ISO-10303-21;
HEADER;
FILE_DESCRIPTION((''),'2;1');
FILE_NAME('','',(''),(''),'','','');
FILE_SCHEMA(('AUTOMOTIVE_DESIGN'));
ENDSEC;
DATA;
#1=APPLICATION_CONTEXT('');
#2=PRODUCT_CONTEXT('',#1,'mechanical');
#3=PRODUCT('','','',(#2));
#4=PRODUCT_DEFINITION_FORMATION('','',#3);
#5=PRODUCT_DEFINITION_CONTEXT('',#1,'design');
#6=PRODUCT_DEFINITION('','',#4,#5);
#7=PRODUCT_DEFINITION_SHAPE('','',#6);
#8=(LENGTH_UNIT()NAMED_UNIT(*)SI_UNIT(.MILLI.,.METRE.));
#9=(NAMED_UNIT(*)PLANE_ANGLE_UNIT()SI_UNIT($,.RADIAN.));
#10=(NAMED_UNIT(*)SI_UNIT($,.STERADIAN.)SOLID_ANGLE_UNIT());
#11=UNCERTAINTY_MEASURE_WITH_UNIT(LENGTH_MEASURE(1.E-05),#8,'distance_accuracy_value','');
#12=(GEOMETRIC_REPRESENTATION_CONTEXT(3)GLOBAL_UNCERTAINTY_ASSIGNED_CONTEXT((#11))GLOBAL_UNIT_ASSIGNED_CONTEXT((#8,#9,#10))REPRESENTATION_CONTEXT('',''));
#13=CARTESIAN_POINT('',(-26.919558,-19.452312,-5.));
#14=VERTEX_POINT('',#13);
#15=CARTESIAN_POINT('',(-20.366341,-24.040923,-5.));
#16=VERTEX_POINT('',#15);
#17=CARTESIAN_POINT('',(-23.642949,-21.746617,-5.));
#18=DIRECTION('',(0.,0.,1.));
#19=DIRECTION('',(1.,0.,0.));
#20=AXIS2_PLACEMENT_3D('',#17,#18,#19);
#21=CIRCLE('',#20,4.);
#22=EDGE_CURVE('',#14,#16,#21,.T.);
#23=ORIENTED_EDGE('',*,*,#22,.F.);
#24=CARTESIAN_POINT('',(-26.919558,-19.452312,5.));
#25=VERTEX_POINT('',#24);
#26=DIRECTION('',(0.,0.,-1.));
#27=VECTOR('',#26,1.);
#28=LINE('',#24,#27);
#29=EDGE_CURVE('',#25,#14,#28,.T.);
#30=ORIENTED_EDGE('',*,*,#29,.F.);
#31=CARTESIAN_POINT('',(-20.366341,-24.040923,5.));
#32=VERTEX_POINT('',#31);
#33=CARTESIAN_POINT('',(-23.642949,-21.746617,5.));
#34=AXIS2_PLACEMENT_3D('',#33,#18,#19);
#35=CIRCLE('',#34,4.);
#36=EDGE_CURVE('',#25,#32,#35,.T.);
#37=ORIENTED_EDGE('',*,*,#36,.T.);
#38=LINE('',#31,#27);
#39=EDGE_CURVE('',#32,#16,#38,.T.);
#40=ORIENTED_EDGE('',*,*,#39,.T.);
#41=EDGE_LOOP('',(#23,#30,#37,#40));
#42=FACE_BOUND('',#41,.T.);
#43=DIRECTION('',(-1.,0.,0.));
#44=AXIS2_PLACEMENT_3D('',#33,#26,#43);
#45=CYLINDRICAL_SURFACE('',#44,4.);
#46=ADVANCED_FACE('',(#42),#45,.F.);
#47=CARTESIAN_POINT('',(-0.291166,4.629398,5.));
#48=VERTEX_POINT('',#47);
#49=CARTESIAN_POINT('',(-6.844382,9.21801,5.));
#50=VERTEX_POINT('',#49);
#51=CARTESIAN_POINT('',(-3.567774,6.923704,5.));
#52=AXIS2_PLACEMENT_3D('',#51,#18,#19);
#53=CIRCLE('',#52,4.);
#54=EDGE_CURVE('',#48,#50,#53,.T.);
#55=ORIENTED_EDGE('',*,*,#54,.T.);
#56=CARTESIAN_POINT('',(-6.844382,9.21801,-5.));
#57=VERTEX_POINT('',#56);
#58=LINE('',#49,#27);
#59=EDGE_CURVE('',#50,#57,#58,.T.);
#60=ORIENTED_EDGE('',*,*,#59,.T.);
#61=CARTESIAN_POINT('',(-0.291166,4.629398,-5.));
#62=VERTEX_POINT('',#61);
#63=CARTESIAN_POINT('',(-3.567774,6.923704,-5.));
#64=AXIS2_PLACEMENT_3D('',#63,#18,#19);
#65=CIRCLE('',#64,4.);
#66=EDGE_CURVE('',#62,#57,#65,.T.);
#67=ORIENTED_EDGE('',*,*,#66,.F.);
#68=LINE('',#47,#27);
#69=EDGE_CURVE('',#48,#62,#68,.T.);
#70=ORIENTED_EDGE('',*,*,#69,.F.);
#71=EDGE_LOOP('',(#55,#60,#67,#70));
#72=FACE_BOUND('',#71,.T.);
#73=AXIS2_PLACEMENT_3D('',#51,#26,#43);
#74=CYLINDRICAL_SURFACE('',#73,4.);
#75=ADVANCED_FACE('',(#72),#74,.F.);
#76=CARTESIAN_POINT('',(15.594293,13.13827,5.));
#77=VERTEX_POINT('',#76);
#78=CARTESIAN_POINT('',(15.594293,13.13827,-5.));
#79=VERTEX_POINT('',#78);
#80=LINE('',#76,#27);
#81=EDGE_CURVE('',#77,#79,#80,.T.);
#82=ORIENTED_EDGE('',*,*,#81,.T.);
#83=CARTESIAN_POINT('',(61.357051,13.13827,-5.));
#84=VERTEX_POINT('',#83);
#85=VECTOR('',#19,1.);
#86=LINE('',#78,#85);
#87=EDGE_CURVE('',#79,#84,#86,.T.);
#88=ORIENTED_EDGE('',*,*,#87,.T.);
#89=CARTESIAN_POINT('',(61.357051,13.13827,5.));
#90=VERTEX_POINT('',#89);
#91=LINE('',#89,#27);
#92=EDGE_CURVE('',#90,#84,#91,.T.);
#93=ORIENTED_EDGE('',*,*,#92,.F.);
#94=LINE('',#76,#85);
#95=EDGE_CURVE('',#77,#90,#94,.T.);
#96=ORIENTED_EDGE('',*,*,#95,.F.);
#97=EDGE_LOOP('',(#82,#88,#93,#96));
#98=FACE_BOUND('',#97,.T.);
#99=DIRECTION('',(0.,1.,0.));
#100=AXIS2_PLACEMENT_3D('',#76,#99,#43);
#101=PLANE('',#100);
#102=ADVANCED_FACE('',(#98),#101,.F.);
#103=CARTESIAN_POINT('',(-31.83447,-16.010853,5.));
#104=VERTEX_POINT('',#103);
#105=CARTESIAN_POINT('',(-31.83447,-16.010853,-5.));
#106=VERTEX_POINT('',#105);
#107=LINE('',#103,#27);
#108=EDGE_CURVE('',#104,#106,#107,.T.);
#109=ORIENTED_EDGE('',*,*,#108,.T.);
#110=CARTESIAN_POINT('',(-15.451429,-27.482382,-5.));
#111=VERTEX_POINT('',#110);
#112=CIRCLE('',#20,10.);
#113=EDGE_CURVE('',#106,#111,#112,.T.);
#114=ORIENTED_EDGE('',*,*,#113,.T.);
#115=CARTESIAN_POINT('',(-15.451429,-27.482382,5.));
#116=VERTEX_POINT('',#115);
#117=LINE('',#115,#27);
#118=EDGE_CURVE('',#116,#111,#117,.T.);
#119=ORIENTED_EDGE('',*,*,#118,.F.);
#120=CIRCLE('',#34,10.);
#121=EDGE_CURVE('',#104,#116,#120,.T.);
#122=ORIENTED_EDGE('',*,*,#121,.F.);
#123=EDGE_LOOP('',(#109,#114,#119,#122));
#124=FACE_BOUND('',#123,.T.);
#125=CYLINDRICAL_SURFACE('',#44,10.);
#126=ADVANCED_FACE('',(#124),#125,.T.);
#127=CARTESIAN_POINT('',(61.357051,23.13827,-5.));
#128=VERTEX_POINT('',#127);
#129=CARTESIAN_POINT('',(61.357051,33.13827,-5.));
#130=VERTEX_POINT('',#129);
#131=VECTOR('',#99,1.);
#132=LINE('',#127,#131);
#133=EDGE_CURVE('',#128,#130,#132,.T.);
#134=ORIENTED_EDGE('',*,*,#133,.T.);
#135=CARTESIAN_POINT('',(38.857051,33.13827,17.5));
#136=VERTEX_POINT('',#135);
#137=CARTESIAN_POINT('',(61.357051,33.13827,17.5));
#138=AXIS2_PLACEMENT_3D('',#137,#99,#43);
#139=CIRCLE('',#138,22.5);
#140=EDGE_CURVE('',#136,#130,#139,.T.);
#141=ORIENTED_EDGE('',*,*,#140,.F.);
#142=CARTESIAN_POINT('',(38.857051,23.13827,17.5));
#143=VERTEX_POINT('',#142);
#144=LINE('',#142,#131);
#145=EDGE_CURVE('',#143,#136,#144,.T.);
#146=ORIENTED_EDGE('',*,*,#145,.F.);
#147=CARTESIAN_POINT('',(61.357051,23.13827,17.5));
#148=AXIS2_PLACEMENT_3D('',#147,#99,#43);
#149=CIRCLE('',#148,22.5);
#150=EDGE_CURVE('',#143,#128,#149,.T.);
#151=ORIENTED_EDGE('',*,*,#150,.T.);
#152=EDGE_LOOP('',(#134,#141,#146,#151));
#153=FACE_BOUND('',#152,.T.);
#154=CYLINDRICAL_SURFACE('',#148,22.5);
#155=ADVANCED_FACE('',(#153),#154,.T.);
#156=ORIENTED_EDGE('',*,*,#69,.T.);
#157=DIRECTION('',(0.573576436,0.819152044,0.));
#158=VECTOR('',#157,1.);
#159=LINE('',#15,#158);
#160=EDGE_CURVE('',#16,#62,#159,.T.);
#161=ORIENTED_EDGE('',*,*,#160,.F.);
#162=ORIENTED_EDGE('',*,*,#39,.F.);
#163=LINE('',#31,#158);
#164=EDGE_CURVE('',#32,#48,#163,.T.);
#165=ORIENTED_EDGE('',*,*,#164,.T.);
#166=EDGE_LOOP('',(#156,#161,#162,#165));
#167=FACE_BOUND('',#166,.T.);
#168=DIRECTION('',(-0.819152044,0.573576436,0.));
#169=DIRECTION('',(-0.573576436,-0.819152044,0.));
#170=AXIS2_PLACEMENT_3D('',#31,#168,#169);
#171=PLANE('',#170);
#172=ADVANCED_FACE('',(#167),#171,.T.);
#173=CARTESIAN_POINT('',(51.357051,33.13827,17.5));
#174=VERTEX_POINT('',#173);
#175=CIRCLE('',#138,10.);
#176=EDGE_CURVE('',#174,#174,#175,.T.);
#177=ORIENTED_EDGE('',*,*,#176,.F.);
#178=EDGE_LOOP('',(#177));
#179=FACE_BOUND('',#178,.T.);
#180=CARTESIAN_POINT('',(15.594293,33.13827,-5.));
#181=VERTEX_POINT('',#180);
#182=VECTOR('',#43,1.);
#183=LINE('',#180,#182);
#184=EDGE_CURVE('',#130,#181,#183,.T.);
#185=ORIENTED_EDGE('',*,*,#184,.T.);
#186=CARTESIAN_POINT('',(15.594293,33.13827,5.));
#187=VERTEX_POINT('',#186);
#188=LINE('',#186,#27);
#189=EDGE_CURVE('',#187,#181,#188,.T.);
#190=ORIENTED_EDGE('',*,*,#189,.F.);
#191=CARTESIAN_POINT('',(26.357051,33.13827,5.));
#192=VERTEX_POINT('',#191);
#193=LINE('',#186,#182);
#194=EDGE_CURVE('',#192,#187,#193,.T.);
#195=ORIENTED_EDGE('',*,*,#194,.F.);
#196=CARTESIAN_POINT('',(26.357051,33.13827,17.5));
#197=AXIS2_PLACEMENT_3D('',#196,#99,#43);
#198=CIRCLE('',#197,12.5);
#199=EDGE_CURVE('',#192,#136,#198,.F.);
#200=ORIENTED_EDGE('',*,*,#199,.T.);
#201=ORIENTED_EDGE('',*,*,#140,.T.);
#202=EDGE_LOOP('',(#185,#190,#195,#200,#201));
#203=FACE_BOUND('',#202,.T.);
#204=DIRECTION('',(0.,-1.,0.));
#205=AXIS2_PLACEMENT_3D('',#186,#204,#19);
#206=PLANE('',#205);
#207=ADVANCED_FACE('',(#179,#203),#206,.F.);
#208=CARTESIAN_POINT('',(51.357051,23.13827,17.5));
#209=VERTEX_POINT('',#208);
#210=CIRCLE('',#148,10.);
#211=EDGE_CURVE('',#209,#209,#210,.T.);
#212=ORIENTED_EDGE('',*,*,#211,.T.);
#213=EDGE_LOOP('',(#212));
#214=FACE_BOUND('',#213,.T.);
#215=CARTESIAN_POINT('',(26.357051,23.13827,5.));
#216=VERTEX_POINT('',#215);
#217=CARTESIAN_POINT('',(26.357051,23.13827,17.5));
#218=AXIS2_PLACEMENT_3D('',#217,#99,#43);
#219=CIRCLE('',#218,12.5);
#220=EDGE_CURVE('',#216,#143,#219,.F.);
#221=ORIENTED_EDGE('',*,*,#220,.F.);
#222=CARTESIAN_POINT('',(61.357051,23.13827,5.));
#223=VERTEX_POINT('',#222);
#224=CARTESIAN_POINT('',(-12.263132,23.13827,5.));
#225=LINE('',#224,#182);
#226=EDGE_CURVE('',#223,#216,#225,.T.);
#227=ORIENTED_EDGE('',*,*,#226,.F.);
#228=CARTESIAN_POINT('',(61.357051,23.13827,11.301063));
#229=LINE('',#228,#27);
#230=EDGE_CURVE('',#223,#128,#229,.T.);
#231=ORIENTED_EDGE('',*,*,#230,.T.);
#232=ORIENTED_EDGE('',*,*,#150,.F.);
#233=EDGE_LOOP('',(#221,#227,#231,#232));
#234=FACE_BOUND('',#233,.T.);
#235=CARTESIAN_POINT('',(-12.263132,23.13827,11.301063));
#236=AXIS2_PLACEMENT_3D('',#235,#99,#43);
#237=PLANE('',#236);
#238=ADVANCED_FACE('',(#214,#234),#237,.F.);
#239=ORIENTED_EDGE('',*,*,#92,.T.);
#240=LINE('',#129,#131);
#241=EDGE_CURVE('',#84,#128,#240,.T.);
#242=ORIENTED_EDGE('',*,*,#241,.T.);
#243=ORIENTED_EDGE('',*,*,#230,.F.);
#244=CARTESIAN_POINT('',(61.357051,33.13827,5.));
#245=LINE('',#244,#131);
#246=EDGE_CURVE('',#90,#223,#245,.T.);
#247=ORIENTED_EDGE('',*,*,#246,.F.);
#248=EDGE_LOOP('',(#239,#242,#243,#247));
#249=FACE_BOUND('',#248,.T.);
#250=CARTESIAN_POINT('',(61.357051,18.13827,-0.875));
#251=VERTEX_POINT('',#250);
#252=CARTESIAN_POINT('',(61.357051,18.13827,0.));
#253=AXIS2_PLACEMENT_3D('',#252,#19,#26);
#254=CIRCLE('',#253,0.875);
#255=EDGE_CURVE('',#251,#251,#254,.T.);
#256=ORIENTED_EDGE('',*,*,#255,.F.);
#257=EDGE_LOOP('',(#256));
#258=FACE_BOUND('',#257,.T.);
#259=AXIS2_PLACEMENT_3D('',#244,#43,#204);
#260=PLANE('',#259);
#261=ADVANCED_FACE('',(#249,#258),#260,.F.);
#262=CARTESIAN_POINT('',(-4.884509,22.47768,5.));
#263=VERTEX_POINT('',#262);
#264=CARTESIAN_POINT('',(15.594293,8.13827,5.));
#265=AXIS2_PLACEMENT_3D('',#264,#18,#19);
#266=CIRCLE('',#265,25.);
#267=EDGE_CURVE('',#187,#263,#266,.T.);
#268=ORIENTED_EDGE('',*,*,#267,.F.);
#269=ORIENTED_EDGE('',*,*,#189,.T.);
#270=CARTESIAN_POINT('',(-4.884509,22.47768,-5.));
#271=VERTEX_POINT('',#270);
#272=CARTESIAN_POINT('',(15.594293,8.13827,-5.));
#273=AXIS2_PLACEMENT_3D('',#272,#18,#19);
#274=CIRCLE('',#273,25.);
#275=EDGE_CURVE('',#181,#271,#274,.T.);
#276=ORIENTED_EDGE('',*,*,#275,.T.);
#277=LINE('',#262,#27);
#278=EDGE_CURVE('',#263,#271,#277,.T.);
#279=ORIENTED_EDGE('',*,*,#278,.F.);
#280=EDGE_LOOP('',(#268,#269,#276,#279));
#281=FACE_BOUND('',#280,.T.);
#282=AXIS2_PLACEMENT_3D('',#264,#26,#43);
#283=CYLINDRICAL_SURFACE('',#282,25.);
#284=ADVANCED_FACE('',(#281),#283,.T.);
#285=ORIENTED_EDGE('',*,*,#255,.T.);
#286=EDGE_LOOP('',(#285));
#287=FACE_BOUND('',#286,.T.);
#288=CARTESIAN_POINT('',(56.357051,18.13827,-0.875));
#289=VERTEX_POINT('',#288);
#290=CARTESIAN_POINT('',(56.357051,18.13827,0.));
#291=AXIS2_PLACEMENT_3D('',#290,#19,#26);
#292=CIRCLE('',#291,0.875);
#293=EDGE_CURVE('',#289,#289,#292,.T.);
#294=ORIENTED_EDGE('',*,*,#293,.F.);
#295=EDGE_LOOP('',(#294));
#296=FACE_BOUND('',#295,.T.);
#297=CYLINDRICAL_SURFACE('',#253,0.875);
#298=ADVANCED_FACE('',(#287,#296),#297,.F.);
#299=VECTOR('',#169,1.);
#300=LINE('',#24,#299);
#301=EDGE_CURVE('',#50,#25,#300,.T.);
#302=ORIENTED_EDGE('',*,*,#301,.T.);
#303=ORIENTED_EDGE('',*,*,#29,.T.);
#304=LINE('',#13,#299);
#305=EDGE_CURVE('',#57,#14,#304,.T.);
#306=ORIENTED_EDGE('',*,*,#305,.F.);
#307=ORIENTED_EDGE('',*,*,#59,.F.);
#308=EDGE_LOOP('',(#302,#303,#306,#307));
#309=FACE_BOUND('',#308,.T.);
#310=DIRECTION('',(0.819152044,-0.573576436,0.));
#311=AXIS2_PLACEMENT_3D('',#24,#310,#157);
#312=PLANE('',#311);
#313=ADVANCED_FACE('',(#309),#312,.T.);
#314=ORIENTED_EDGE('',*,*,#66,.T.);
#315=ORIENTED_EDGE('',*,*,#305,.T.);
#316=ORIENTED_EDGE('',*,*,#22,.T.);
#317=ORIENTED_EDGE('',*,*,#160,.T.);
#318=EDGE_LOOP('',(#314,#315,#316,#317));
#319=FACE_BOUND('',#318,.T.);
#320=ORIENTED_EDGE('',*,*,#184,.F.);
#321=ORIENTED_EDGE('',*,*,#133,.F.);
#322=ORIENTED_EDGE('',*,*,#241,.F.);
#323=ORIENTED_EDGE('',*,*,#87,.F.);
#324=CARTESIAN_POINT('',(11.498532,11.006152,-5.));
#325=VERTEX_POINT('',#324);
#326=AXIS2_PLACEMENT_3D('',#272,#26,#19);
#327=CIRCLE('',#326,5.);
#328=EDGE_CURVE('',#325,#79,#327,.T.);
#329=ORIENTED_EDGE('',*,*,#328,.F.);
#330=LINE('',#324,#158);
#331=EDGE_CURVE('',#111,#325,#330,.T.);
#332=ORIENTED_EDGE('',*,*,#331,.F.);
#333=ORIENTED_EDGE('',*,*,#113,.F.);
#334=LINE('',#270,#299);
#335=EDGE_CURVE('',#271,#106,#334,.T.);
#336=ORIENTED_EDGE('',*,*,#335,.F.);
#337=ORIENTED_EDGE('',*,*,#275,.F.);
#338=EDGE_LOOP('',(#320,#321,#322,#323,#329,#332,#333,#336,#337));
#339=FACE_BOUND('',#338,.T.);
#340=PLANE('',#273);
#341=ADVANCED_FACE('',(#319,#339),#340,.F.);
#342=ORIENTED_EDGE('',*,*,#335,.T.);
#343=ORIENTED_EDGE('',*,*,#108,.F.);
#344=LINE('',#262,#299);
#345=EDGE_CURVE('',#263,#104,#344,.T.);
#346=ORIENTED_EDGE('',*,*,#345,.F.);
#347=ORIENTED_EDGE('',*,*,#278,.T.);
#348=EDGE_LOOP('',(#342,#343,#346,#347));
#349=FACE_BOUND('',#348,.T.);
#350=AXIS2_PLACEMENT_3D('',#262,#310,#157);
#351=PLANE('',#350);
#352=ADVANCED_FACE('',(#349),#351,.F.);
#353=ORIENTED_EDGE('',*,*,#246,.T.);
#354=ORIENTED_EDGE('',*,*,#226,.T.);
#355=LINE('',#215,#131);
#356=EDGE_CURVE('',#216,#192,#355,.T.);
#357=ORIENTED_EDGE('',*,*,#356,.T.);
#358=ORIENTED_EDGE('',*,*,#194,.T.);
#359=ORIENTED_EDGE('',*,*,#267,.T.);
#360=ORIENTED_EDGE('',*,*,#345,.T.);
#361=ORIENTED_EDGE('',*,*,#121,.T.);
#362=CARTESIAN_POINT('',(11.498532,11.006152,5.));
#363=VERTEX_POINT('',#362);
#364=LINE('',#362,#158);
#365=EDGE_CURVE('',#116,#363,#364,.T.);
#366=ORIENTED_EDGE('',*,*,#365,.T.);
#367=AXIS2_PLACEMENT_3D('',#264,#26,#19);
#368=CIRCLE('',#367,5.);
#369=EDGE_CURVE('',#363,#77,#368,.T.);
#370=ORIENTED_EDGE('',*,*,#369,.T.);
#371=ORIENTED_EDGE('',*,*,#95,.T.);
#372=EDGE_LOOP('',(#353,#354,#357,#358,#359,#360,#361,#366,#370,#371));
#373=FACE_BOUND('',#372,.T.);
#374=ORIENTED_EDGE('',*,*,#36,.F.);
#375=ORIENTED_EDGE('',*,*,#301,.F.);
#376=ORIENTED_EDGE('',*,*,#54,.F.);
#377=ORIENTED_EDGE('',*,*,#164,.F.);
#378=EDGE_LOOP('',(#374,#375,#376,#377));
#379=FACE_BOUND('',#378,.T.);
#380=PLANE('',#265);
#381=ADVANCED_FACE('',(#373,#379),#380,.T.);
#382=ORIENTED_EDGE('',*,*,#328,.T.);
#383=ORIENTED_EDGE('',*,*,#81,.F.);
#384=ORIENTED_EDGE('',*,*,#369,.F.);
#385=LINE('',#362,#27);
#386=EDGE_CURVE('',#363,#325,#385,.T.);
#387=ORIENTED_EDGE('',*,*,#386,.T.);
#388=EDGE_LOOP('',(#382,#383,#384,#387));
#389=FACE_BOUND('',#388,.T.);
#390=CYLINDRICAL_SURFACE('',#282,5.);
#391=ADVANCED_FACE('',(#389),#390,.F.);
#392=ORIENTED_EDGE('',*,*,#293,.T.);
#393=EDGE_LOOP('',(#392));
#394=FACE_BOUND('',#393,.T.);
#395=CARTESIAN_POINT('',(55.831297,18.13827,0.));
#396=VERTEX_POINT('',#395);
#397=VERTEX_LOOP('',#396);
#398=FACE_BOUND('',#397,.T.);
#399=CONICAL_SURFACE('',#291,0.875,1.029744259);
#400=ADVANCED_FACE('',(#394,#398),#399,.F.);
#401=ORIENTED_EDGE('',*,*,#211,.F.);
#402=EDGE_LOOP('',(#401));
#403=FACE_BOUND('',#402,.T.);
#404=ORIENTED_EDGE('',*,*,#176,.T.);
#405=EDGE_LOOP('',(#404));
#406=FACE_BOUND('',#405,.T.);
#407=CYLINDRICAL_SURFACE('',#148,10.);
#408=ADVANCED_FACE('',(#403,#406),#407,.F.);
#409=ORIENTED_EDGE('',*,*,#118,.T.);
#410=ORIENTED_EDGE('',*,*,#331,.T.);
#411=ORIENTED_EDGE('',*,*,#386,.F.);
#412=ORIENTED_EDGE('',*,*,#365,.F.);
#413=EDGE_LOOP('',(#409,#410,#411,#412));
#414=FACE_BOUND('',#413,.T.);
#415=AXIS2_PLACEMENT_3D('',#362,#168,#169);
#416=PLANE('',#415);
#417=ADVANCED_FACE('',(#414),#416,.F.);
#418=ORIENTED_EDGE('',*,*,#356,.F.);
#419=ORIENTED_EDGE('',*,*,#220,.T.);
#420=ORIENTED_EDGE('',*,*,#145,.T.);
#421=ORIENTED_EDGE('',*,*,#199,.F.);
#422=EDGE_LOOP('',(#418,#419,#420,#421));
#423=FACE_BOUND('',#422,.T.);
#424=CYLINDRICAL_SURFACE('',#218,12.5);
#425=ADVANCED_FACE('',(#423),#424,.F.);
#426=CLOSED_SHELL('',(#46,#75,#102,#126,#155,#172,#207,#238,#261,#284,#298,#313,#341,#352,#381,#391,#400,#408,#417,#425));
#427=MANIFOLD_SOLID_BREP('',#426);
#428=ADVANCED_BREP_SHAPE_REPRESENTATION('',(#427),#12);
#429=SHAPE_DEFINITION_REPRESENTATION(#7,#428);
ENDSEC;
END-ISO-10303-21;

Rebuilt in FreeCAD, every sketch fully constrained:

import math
import FreeCAD as App
import Part
import Sketcher

V = App.Vector
Q = App.Units.Quantity

doc = App.newDocument("Part")
body = doc.addObject("PartDesign::Body", "Body")

# Sketch on XY plane
sketch1 = body.newObject("Sketcher::SketchObject", "Sketch")
sketch1.AttachmentSupport = (doc.getObject("XY_Plane"), [""])
sketch1.MapMode = "FlatFace"
sketch1.addGeometry(Part.LineSegment(V(-15.5, -27.5, 0), V(11.5, 11, 0)), False)
sketch1.addGeometry(Part.ArcOfCircle(Part.Circle(V(15.6, 8.1, 0), V(0, 0, 1), 5), math.radians(90), math.radians(145)), False)
sketch1.addGeometry(Part.LineSegment(V(15.6, 13.1, 0), V(61.4, 13.1, 0)), False)
sketch1.addGeometry(Part.LineSegment(V(61.4, 13.1, 0), V(61.4, 33.1, 0)), False)
sketch1.addGeometry(Part.LineSegment(V(61.4, 33.1, 0), V(15.6, 33.1, 0)), False)
sketch1.addGeometry(Part.ArcOfCircle(Part.Circle(V(15.6, 8.1, 0), V(0, 0, 1), 25), math.radians(90), math.radians(145)), False)
sketch1.addGeometry(Part.LineSegment(V(-4.9, 22.5, 0), V(-31.8, -16, 0)), False)
sketch1.addGeometry(Part.ArcOfCircle(Part.Circle(V(-23.6, -21.7, 0), V(0, 0, 1), 10), math.radians(145), math.radians(325)), False)
sketch1.addGeometry(Part.LineSegment(V(-26.9, -19.5, 0), V(-6.8, 9.2, 0)), False)
sketch1.addGeometry(Part.ArcOfCircle(Part.Circle(V(-3.6, 6.9, 0), V(0, 0, 1), 4), math.radians(-35), math.radians(145)), False)
sketch1.addGeometry(Part.LineSegment(V(-0.3, 4.6, 0), V(-20.4, -24, 0)), False)
sketch1.addGeometry(Part.ArcOfCircle(Part.Circle(V(-23.6, -21.7, 0), V(0, 0, 1), 4), math.radians(145), math.radians(325)), False)
sketch1.addConstraint(Sketcher.Constraint("Tangent", 0, 2, 1, 2))
sketch1.addConstraint(Sketcher.Constraint("Tangent", 1, 1, 2, 1))
sketch1.addConstraint(Sketcher.Constraint("Coincident", 2, 2, 3, 1))
sketch1.addConstraint(Sketcher.Constraint("Coincident", 3, 2, 4, 1))
sketch1.addConstraint(Sketcher.Constraint("Tangent", 4, 2, 5, 1))
sketch1.addConstraint(Sketcher.Constraint("Tangent", 5, 2, 6, 1))
sketch1.addConstraint(Sketcher.Constraint("Tangent", 6, 2, 7, 1))
sketch1.addConstraint(Sketcher.Constraint("Tangent", 7, 2, 0, 1))
sketch1.addConstraint(Sketcher.Constraint("Tangent", 8, 2, 9, 2))
sketch1.addConstraint(Sketcher.Constraint("Tangent", 9, 1, 10, 1))
sketch1.addConstraint(Sketcher.Constraint("Tangent", 10, 2, 11, 2))
sketch1.addConstraint(Sketcher.Constraint("Tangent", 11, 1, 8, 1))
sketch1.addConstraint(Sketcher.Constraint("Horizontal", 2))
sketch1.addConstraint(Sketcher.Constraint("Vertical", 3))
sketch1.addConstraint(Sketcher.Constraint("Horizontal", 4))
sketch1.addConstraint(Sketcher.Constraint("Coincident", 5, 3, 1, 3))
sketch1.addConstraint(Sketcher.Constraint("Coincident", 11, 3, 7, 3))
sketch1.addConstraint(Sketcher.Constraint("Equal", 9, 11))
sketch1.addConstraint(Sketcher.Constraint("Parallel", 0, 6))
sketch1.addConstraint(Sketcher.Constraint("Parallel", 6, 8))
sketch1.addConstraint(Sketcher.Constraint("Radius", 1, 5.0))
sketch1.addConstraint(Sketcher.Constraint("Radius", 5, 25.0))
sketch1.addConstraint(Sketcher.Constraint("Radius", 9, 4.0))
sketch1.addConstraint(Sketcher.Constraint("Angle", 0, Q("55 deg")))
sketch1.addConstraint(Sketcher.Constraint("Distance", 8, 35.0))
sketch1.addConstraint(Sketcher.Constraint("DistanceY", -1, 1, 9, 1, 4.629398))
sketch1.addConstraint(Sketcher.Constraint("DistanceX", 9, 1, 0, 2, 11.789698))
sketch1.addConstraint(Sketcher.Constraint("DistanceX", 2, 1, 2, 2, 45.762758))
sketch1.addConstraint(Sketcher.Constraint("DistanceX", 7, 3, -1, 1, 23.642949))
pad1 = body.newObject("PartDesign::Pad", "Pad")
pad1.Profile = sketch1
pad1.Length = 10
pad1.Midplane = True

# Sketch on XZ plane
sketch2 = body.newObject("Sketcher::SketchObject", "Sketch001")
sketch2.AttachmentSupport = (doc.getObject("XZ_Plane"), [""])
sketch2.MapMode = "FlatFace"
sketch2.AttachmentOffset = App.Placement(V(0, 0, -33.13827), App.Rotation())
sketch2.addGeometry(Part.LineSegment(V(61, -5, 0), V(16, -5, 0)), False)
sketch2.addGeometry(Part.LineSegment(V(16, -5, 0), V(16, 5, 0)), False)
sketch2.addGeometry(Part.LineSegment(V(16, 5, 0), V(26, 5, 0)), False)
sketch2.addGeometry(Part.ArcOfCircle(Part.Circle(V(26, 17, 0), V(0, 0, 1), 12), math.radians(-90), math.radians(0)), False)
sketch2.addGeometry(Part.ArcOfCircle(Part.Circle(V(61, 18, 0), V(0, 0, 1), 22), math.radians(-90), math.radians(180)), False)
sketch2.addGeometry(Part.Circle(V(61, 18, 0), V(0, 0, 1), 10), False)
sketch2.addConstraint(Sketcher.Constraint("Coincident", 0, 2, 1, 1))
sketch2.addConstraint(Sketcher.Constraint("Coincident", 1, 2, 2, 1))
sketch2.addConstraint(Sketcher.Constraint("Tangent", 2, 2, 3, 1))
sketch2.addConstraint(Sketcher.Constraint("Tangent", 3, 2, 4, 2))
sketch2.addConstraint(Sketcher.Constraint("Tangent", 4, 1, 0, 1))
sketch2.addConstraint(Sketcher.Constraint("Horizontal", 0))
sketch2.addConstraint(Sketcher.Constraint("Vertical", 1))
sketch2.addConstraint(Sketcher.Constraint("Horizontal", 2))
sketch2.addConstraint(Sketcher.Constraint("Coincident", 5, 3, 4, 3))
sketch2.addConstraint(Sketcher.Constraint("Horizontal", 3, 3, 4, 3))
sketch2.addConstraint(Sketcher.Constraint("Diameter", 5, 20.0))
sketch2.addConstraint(Sketcher.Constraint("Radius", 3, 12.5))
sketch2.addConstraint(Sketcher.Constraint("Radius", 4, 22.5))
sketch2.addConstraint(Sketcher.Constraint("DistanceY", 0, 2, -1, 1, 5.0))
sketch2.addConstraint(Sketcher.Constraint("DistanceX", 0, 2, 0, 1, 45.762758))
sketch2.addConstraint(Sketcher.Constraint("DistanceX", -1, 1, 3, 3, 26.357051))
pad2 = body.newObject("PartDesign::Pad", "Pad001")
pad2.Profile = sketch2
pad2.Length = 10

# Sketch on YZ plane
sketch3 = body.newObject("Sketcher::SketchObject", "Sketch002")
sketch3.AttachmentSupport = (doc.getObject("YZ_Plane"), [""])
sketch3.MapMode = "FlatFace"
sketch3.AttachmentOffset = App.Placement(V(0, 0, 61.357051), App.Rotation())
sketch3.addGeometry(Part.Circle(V(18.1, 0, 0), V(0, 0, 1), 0.9), False)
sketch3.addConstraint(Sketcher.Constraint("PointOnObject", 0, 3, -1))
sketch3.addConstraint(Sketcher.Constraint("Diameter", 0, 1.75))
sketch3.addConstraint(Sketcher.Constraint("DistanceX", -1, 1, 0, 3, 18.13827))
doc.recompute()
hole = body.newObject("PartDesign::Hole", "Hole")
hole.Profile = sketch3
hole.ThreadType = "None"
hole.Diameter = 1.75
hole.DepthType = "Dimension"
hole.Depth = 5
hole.DrillPoint = "Angled"
hole.DrillPointAngle = 118

doc.recompute()
